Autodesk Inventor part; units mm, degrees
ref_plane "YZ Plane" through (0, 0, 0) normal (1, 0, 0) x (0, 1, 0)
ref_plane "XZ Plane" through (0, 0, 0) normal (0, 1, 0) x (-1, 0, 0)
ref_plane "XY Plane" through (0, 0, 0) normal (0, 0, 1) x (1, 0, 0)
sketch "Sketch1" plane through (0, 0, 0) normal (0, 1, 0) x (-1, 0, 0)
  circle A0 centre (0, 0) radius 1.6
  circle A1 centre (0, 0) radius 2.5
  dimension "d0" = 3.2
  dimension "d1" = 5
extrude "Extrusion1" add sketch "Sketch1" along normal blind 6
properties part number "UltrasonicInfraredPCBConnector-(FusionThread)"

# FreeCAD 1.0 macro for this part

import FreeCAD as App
import Part
import Sketcher

V = App.Vector
Q = App.Units.Quantity

doc = App.newDocument("Part")
body = doc.addObject("PartDesign::Body", "Body")

# Sketch on XZ plane
sketch1 = body.newObject("Sketcher::SketchObject", "Sketch")
sketch1.AttachmentSupport = (doc.getObject("XZ_Plane"), [""])
sketch1.MapMode = "FlatFace"
sketch1.addGeometry([
    Part.Circle(V(0, 0, 0), V(0, 0, 1), 2.5),
    Part.Circle(V(0, 0, 0), V(0, 0, 1), 1.6),
], False)
sketch1.addConstraint([
    Sketcher.Constraint("Coincident", 0, 3, -1, 1),
    Sketcher.Constraint("Coincident", 1, 3, -1, 1),
    Sketcher.Constraint("Diameter", 0, Q("5 mm")),
    Sketcher.Constraint("Diameter", 1, Q("3.2 mm")),
])
pad1 = body.newObject("PartDesign::Pad", "Pad")
pad1.Profile = sketch1
pad1.Length = 6
pad1.Reversed = True

doc.recompute()
